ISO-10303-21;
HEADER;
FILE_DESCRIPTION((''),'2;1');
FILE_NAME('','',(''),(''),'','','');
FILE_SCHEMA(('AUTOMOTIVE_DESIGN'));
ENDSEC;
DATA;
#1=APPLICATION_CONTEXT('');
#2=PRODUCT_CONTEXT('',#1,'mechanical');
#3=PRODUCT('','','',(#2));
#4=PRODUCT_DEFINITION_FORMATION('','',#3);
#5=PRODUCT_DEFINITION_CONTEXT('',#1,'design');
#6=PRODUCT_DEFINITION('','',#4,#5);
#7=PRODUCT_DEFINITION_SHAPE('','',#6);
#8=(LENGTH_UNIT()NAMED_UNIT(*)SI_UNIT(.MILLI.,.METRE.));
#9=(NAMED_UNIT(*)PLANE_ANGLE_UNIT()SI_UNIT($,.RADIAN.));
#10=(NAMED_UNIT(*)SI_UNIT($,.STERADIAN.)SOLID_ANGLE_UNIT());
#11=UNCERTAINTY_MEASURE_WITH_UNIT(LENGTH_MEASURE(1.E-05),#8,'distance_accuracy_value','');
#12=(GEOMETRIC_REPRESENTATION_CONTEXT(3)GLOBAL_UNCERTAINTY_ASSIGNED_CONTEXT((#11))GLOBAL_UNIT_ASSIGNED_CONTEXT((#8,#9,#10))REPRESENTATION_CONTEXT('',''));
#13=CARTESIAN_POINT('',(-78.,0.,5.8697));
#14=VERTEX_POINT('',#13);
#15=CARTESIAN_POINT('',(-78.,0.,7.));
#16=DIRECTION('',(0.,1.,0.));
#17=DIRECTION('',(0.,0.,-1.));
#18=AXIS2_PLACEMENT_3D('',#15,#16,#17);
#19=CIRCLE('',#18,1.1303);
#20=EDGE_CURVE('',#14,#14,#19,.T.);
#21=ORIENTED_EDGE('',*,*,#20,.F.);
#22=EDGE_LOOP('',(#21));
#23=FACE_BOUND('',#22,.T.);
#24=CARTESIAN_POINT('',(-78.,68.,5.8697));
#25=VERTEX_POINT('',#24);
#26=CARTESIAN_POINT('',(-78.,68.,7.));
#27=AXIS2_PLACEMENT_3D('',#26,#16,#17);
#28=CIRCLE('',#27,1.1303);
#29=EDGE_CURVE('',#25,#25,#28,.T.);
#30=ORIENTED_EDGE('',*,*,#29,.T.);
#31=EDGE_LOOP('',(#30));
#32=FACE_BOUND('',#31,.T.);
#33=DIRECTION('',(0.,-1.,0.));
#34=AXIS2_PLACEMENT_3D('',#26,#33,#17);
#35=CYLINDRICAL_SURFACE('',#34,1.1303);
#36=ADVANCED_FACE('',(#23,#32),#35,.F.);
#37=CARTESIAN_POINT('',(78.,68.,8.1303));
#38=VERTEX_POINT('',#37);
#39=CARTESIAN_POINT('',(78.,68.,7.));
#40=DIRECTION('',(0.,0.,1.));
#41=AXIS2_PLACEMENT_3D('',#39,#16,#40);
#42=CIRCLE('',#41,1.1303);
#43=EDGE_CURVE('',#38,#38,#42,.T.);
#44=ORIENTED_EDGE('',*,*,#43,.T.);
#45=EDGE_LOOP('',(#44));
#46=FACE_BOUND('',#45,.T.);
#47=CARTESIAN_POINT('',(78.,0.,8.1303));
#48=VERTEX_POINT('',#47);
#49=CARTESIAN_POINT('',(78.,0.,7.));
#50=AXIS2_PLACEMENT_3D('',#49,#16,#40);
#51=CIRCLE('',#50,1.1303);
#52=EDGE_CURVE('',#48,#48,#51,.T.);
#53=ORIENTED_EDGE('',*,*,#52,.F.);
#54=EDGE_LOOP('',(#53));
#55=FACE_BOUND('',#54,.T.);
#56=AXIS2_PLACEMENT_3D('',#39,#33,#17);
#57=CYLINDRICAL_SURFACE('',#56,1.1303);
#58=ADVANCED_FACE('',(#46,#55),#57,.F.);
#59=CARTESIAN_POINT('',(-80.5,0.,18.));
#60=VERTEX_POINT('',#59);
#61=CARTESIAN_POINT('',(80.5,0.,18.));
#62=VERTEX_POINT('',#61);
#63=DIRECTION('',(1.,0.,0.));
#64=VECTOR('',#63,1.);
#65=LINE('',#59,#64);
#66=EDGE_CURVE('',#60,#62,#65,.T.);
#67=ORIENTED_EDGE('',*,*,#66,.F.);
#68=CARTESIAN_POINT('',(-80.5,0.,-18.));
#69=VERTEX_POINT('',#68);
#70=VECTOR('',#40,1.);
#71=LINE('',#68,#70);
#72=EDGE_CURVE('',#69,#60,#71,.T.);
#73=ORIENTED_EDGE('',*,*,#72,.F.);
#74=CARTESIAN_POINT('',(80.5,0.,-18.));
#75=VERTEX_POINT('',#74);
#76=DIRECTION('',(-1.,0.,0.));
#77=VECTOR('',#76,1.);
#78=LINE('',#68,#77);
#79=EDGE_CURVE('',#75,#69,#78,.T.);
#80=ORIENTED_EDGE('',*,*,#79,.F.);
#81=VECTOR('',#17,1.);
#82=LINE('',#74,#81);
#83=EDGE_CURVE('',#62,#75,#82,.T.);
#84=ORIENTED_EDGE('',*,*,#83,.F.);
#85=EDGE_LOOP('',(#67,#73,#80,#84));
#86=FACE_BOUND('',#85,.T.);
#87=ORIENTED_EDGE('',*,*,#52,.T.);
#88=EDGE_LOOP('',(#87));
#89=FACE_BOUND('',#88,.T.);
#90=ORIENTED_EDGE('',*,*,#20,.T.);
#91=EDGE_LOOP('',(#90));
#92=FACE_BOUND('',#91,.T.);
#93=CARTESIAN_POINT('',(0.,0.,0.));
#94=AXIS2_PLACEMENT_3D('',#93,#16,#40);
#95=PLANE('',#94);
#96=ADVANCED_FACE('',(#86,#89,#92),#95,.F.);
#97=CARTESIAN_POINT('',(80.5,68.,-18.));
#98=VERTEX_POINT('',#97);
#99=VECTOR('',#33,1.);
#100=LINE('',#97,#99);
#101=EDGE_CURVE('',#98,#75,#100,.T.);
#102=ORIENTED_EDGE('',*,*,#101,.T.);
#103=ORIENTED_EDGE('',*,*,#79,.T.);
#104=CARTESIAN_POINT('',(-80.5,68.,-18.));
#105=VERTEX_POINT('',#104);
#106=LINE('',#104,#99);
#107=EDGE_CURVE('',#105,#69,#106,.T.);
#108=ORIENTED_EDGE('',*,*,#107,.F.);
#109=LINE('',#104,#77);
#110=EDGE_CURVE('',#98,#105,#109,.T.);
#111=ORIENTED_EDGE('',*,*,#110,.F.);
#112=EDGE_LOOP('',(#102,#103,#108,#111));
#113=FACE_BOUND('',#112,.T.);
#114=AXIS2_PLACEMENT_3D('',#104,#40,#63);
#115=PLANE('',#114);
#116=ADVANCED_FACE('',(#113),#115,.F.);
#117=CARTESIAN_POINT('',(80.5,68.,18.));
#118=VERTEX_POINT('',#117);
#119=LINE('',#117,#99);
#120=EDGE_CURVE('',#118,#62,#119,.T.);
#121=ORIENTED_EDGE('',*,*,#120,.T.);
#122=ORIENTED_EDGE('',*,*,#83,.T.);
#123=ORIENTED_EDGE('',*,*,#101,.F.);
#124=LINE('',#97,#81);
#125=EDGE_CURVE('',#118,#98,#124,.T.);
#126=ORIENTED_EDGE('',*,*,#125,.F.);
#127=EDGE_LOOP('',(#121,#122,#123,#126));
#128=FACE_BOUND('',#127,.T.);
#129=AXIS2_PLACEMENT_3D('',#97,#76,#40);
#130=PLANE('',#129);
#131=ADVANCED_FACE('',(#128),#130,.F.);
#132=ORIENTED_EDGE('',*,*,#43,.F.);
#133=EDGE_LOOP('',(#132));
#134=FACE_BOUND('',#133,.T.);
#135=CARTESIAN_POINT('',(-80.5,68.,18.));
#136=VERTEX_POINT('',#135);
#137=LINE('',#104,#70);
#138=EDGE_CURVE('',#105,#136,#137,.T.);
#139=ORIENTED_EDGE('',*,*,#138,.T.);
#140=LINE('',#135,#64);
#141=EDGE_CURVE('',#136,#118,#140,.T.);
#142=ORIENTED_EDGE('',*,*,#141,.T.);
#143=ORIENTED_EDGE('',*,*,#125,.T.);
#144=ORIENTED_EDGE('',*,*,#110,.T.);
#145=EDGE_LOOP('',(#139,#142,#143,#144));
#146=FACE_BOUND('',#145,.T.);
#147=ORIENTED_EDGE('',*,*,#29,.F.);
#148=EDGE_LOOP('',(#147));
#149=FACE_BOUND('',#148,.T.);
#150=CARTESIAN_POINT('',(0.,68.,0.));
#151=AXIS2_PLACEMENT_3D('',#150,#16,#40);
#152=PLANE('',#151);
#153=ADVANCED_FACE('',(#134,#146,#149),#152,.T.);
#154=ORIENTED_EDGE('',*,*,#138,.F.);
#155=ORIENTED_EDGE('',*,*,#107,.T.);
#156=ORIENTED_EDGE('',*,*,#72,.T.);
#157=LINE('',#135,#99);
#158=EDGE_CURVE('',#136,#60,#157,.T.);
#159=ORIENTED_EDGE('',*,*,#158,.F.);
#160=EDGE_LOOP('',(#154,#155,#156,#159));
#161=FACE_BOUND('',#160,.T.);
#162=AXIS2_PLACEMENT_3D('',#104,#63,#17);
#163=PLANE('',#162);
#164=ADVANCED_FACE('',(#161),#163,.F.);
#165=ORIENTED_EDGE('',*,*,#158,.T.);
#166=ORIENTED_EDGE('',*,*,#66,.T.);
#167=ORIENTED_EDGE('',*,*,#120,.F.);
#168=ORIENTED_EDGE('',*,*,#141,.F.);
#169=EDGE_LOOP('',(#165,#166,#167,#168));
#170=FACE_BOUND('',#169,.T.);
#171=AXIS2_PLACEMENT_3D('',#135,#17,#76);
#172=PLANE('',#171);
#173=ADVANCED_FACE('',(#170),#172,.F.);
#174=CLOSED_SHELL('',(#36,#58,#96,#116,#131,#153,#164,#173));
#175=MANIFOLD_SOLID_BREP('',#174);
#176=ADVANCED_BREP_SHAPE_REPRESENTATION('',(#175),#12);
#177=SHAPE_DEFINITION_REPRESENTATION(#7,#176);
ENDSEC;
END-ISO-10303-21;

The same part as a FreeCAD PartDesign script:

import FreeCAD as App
import Part
import Sketcher

doc = App.newDocument("Part")
body = doc.addObject("PartDesign::Body", "Body")

sketch1 = body.newObject("Sketcher::SketchObject", "Sketch")
sketch1.AttachmentSupport = (doc.getObject("XZ_Plane"), [""])
sketch1.MapMode = "FlatFace"
sketch1.addGeometry([
    Part.LineSegment(App.Vector(-80.5, -18, 0), App.Vector(-80.5, 18, 0)),
    Part.LineSegment(App.Vector(-80.5, 18, 0), App.Vector(80.5, 18, 0)),
    Part.LineSegment(App.Vector(80.5, 18, 0), App.Vector(80.5, -18, 0)),
    Part.LineSegment(App.Vector(80.5, -18, 0), App.Vector(-80.5, -18, 0)),
    Part.Circle(App.Vector(-78, 7, 0), App.Vector(0, 0, 1), 1.1),
    Part.Circle(App.Vector(78, 7, 0), App.Vector(0, 0, 1), 1.1),
], False)
sketch1.addConstraint([
    Sketcher.Constraint("Coincident", 0, 2, 1, 1),
    Sketcher.Constraint("Coincident", 1, 2, 2, 1),
    Sketcher.Constraint("Coincident", 2, 2, 3, 1),
    Sketcher.Constraint("Coincident", 3, 2, 0, 1),
    Sketcher.Constraint("Vertical", 0),
    Sketcher.Constraint("Horizontal", 1),
    Sketcher.Constraint("Vertical", 2),
    Sketcher.Constraint("Horizontal", 3),
    Sketcher.Constraint("Equal", 4, 5),
    Sketcher.Constraint("Symmetric", 0, 2, 2, 2, -1, 1),
    Sketcher.Constraint("Symmetric", 4, 3, 5, 3, -2),
    Sketcher.Constraint("DistanceX", 1, 1, 1, 2, 161.0),
    Sketcher.Constraint("DistanceY", 0, 1, 0, 2, 36.0),
    Sketcher.Constraint("DistanceX", 4, 3, -1, 1, 78.0),
    Sketcher.Constraint("DistanceY", -1, 1, 4, 3, 7.0),
    Sketcher.Constraint("Diameter", 4, 2.2606),
])
pad1 = body.newObject("PartDesign::Pad", "Pad")
pad1.Profile = sketch1
pad1.Length = 68
pad1.Reversed = True

doc.recompute()
